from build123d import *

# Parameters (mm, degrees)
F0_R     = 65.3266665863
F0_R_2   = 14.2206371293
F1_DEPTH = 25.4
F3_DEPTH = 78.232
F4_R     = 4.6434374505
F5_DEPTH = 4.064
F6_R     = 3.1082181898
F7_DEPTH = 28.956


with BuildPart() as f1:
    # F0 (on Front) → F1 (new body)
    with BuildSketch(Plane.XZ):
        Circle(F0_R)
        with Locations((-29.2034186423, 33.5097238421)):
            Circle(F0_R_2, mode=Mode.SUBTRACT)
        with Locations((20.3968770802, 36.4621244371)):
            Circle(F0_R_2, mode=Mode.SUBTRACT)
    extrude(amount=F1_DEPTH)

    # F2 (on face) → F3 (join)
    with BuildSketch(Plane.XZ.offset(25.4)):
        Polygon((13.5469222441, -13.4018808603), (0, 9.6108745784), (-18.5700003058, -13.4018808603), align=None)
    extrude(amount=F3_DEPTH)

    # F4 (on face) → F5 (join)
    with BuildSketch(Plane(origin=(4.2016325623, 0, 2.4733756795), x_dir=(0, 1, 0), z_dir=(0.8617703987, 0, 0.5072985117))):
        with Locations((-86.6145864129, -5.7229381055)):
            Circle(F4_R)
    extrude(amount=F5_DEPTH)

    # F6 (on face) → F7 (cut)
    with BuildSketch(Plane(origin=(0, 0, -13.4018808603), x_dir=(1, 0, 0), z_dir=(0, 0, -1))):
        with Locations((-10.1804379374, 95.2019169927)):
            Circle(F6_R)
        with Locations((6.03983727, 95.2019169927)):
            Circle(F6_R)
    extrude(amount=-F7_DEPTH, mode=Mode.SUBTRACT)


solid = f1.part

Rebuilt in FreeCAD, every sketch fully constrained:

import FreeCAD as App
import Part
import Sketcher
from FreeCAD import Vector
Q = App.Units.Quantity


def add_polygon(sketch, points):
    """Adds a closed chain of lines whose ends are joined by coincident constraints."""
    first, n = sketch.GeometryCount, len(points)
    for a, b in zip(points, points[1:] + points[:1]):
        sketch.addGeometry(Part.LineSegment(App.Vector(*a, 0), App.Vector(*b, 0)), False)
    for i in range(n):
        sketch.addConstraint(Sketcher.Constraint("Coincident", first + i, 2, first + (i + 1) % n, 1))

doc = App.newDocument("Part")
body = doc.addObject("PartDesign::Body", "Body")

# Sketch on XZ plane
sketch1 = doc.addObject("Sketcher::SketchObject", "Sketch")
body.addObject(sketch1)
sketch1.AttachmentSupport = (doc.XZ_Plane, [""])
sketch1.MapMode = "FlatFace"
sketch1.addGeometry(Part.Circle(Vector(0, 0, 0), Vector(0, 0, 1), 65), False)
sketch1.addGeometry(Part.Circle(Vector(-29, 34, 0), Vector(0, 0, 1), 14), False)
sketch1.addGeometry(Part.Circle(Vector(20, 36, 0), Vector(0, 0, 1), 14), False)
sketch1.addConstraint(Sketcher.Constraint("Coincident", 0, 3, -1, 1))
sketch1.addConstraint(Sketcher.Constraint("Equal", 1, 2))
sketch1.addConstraint(Sketcher.Constraint("Diameter", 0, 130.653333))
sketch1.addConstraint(Sketcher.Constraint("Diameter", 1, 28.441274))
sketch1.addConstraint(Sketcher.Constraint("DistanceY", 1, 3, 2, 3, 2.952401))
sketch1.addConstraint(Sketcher.Constraint("DistanceX", 1, 3, -1, 1, 29.203419))
sketch1.addConstraint(Sketcher.Constraint("DistanceY", -1, 1, 1, 3, 33.509724))
sketch1.addConstraint(Sketcher.Constraint("DistanceX", -1, 1, 2, 3, 20.396877))
pad1 = doc.addObject("PartDesign::Pad", "Pad")
body.addObject(pad1)
pad1.Profile = sketch1
pad1.Length = Q("1 in")

# Sketch on XZ plane
sketch2 = doc.addObject("Sketcher::SketchObject", "Sketch001")
body.addObject(sketch2)
sketch2.AttachmentSupport = (doc.XZ_Plane, [""])
sketch2.MapMode = "FlatFace"
sketch2.AttachmentOffset = App.Placement(Vector(0, 0, 1 * 25.4), App.Rotation())
add_polygon(sketch2, [(14, -13), (0, 10), (-19, -13)])  # lines 0-2
sketch2.addConstraint(Sketcher.Constraint("Horizontal", 2))
sketch2.addConstraint(Sketcher.Constraint("PointOnObject", 0, 2, -2))
sketch2.addConstraint(Sketcher.Constraint("DistanceX", 1, 2, -1, 1, 18.57))
sketch2.addConstraint(Sketcher.Constraint("DistanceX", 2, 1, 2, 2, 32.116923))
sketch2.addConstraint(Sketcher.Constraint("DistanceY", 1, 2, -1, 1, 13.401881))
sketch2.addConstraint(Sketcher.Constraint("Distance", 0, 26.704045))
pad2 = doc.addObject("PartDesign::Pad", "Pad001")
body.addObject(pad2)
pad2.Profile = sketch2
pad2.Length = Q("3.08 in")

# Sketch on an angled plane
sketch3 = doc.addObject("Sketcher::SketchObject", "Sketch002")
body.addObject(sketch3)
sketch3.Placement = App.Placement(Vector(4.201633, 0, 2.473376), App.Rotation(Vector(0, 1, 0), Vector(-0.507298512, 0, 0.861770399), Vector(0.861770399, 0, 0.507298512), "ZXY"))
sketch3.addGeometry(Part.Circle(Vector(-86.6, -5.7, 0), Vector(0, 0, 1), 4.6), False)
sketch3.addConstraint(Sketcher.Constraint("Diameter", 0, 9.286875))
sketch3.addConstraint(Sketcher.Constraint("DistanceY", 0, 3, -1, 1, 5.722938))
sketch3.addConstraint(Sketcher.Constraint("DistanceX", 0, 3, -1, 1, 86.614586))
pad3 = doc.addObject("PartDesign::Pad", "Pad002")
body.addObject(pad3)
pad3.Profile = sketch3
pad3.Length = Q("0.16 in")

# Sketch on XY plane
sketch4 = doc.addObject("Sketcher::SketchObject", "Sketch003")
body.addObject(sketch4)
sketch4.AttachmentSupport = (doc.XY_Plane, [""])
sketch4.MapMode = "FlatFace"
sketch4.AttachmentOffset = App.Placement(Vector(0, 0, -13.401881), App.Rotation())
sketch4.addGeometry(Part.Circle(Vector(-10.2, -95.2, 0), Vector(0, 0, 1), 3.1), False)
sketch4.addGeometry(Part.Circle(Vector(6, -95.2, 0), Vector(0, 0, 1), 3.1), False)
sketch4.addConstraint(Sketcher.Constraint("Equal", 0, 1))
sketch4.addConstraint(Sketcher.Constraint("Horizontal", 0, 3, 1, 3))
sketch4.addConstraint(Sketcher.Constraint("Diameter", 0, 6.216436))
sketch4.addConstraint(Sketcher.Constraint("DistanceX", 0, 3, -1, 1, 10.180438))
sketch4.addConstraint(Sketcher.Constraint("DistanceY", 0, 3, -1, 1, 95.201917))
sketch4.addConstraint(Sketcher.Constraint("DistanceX", -1, 1, 1, 3, 6.039837))
pocket1 = doc.addObject("PartDesign::Pocket", "Pocket")
body.addObject(pocket1)
pocket1.Profile = sketch4
pocket1.Length = Q("1.14 in")
pocket1.Reversed = True

doc.recompute()
